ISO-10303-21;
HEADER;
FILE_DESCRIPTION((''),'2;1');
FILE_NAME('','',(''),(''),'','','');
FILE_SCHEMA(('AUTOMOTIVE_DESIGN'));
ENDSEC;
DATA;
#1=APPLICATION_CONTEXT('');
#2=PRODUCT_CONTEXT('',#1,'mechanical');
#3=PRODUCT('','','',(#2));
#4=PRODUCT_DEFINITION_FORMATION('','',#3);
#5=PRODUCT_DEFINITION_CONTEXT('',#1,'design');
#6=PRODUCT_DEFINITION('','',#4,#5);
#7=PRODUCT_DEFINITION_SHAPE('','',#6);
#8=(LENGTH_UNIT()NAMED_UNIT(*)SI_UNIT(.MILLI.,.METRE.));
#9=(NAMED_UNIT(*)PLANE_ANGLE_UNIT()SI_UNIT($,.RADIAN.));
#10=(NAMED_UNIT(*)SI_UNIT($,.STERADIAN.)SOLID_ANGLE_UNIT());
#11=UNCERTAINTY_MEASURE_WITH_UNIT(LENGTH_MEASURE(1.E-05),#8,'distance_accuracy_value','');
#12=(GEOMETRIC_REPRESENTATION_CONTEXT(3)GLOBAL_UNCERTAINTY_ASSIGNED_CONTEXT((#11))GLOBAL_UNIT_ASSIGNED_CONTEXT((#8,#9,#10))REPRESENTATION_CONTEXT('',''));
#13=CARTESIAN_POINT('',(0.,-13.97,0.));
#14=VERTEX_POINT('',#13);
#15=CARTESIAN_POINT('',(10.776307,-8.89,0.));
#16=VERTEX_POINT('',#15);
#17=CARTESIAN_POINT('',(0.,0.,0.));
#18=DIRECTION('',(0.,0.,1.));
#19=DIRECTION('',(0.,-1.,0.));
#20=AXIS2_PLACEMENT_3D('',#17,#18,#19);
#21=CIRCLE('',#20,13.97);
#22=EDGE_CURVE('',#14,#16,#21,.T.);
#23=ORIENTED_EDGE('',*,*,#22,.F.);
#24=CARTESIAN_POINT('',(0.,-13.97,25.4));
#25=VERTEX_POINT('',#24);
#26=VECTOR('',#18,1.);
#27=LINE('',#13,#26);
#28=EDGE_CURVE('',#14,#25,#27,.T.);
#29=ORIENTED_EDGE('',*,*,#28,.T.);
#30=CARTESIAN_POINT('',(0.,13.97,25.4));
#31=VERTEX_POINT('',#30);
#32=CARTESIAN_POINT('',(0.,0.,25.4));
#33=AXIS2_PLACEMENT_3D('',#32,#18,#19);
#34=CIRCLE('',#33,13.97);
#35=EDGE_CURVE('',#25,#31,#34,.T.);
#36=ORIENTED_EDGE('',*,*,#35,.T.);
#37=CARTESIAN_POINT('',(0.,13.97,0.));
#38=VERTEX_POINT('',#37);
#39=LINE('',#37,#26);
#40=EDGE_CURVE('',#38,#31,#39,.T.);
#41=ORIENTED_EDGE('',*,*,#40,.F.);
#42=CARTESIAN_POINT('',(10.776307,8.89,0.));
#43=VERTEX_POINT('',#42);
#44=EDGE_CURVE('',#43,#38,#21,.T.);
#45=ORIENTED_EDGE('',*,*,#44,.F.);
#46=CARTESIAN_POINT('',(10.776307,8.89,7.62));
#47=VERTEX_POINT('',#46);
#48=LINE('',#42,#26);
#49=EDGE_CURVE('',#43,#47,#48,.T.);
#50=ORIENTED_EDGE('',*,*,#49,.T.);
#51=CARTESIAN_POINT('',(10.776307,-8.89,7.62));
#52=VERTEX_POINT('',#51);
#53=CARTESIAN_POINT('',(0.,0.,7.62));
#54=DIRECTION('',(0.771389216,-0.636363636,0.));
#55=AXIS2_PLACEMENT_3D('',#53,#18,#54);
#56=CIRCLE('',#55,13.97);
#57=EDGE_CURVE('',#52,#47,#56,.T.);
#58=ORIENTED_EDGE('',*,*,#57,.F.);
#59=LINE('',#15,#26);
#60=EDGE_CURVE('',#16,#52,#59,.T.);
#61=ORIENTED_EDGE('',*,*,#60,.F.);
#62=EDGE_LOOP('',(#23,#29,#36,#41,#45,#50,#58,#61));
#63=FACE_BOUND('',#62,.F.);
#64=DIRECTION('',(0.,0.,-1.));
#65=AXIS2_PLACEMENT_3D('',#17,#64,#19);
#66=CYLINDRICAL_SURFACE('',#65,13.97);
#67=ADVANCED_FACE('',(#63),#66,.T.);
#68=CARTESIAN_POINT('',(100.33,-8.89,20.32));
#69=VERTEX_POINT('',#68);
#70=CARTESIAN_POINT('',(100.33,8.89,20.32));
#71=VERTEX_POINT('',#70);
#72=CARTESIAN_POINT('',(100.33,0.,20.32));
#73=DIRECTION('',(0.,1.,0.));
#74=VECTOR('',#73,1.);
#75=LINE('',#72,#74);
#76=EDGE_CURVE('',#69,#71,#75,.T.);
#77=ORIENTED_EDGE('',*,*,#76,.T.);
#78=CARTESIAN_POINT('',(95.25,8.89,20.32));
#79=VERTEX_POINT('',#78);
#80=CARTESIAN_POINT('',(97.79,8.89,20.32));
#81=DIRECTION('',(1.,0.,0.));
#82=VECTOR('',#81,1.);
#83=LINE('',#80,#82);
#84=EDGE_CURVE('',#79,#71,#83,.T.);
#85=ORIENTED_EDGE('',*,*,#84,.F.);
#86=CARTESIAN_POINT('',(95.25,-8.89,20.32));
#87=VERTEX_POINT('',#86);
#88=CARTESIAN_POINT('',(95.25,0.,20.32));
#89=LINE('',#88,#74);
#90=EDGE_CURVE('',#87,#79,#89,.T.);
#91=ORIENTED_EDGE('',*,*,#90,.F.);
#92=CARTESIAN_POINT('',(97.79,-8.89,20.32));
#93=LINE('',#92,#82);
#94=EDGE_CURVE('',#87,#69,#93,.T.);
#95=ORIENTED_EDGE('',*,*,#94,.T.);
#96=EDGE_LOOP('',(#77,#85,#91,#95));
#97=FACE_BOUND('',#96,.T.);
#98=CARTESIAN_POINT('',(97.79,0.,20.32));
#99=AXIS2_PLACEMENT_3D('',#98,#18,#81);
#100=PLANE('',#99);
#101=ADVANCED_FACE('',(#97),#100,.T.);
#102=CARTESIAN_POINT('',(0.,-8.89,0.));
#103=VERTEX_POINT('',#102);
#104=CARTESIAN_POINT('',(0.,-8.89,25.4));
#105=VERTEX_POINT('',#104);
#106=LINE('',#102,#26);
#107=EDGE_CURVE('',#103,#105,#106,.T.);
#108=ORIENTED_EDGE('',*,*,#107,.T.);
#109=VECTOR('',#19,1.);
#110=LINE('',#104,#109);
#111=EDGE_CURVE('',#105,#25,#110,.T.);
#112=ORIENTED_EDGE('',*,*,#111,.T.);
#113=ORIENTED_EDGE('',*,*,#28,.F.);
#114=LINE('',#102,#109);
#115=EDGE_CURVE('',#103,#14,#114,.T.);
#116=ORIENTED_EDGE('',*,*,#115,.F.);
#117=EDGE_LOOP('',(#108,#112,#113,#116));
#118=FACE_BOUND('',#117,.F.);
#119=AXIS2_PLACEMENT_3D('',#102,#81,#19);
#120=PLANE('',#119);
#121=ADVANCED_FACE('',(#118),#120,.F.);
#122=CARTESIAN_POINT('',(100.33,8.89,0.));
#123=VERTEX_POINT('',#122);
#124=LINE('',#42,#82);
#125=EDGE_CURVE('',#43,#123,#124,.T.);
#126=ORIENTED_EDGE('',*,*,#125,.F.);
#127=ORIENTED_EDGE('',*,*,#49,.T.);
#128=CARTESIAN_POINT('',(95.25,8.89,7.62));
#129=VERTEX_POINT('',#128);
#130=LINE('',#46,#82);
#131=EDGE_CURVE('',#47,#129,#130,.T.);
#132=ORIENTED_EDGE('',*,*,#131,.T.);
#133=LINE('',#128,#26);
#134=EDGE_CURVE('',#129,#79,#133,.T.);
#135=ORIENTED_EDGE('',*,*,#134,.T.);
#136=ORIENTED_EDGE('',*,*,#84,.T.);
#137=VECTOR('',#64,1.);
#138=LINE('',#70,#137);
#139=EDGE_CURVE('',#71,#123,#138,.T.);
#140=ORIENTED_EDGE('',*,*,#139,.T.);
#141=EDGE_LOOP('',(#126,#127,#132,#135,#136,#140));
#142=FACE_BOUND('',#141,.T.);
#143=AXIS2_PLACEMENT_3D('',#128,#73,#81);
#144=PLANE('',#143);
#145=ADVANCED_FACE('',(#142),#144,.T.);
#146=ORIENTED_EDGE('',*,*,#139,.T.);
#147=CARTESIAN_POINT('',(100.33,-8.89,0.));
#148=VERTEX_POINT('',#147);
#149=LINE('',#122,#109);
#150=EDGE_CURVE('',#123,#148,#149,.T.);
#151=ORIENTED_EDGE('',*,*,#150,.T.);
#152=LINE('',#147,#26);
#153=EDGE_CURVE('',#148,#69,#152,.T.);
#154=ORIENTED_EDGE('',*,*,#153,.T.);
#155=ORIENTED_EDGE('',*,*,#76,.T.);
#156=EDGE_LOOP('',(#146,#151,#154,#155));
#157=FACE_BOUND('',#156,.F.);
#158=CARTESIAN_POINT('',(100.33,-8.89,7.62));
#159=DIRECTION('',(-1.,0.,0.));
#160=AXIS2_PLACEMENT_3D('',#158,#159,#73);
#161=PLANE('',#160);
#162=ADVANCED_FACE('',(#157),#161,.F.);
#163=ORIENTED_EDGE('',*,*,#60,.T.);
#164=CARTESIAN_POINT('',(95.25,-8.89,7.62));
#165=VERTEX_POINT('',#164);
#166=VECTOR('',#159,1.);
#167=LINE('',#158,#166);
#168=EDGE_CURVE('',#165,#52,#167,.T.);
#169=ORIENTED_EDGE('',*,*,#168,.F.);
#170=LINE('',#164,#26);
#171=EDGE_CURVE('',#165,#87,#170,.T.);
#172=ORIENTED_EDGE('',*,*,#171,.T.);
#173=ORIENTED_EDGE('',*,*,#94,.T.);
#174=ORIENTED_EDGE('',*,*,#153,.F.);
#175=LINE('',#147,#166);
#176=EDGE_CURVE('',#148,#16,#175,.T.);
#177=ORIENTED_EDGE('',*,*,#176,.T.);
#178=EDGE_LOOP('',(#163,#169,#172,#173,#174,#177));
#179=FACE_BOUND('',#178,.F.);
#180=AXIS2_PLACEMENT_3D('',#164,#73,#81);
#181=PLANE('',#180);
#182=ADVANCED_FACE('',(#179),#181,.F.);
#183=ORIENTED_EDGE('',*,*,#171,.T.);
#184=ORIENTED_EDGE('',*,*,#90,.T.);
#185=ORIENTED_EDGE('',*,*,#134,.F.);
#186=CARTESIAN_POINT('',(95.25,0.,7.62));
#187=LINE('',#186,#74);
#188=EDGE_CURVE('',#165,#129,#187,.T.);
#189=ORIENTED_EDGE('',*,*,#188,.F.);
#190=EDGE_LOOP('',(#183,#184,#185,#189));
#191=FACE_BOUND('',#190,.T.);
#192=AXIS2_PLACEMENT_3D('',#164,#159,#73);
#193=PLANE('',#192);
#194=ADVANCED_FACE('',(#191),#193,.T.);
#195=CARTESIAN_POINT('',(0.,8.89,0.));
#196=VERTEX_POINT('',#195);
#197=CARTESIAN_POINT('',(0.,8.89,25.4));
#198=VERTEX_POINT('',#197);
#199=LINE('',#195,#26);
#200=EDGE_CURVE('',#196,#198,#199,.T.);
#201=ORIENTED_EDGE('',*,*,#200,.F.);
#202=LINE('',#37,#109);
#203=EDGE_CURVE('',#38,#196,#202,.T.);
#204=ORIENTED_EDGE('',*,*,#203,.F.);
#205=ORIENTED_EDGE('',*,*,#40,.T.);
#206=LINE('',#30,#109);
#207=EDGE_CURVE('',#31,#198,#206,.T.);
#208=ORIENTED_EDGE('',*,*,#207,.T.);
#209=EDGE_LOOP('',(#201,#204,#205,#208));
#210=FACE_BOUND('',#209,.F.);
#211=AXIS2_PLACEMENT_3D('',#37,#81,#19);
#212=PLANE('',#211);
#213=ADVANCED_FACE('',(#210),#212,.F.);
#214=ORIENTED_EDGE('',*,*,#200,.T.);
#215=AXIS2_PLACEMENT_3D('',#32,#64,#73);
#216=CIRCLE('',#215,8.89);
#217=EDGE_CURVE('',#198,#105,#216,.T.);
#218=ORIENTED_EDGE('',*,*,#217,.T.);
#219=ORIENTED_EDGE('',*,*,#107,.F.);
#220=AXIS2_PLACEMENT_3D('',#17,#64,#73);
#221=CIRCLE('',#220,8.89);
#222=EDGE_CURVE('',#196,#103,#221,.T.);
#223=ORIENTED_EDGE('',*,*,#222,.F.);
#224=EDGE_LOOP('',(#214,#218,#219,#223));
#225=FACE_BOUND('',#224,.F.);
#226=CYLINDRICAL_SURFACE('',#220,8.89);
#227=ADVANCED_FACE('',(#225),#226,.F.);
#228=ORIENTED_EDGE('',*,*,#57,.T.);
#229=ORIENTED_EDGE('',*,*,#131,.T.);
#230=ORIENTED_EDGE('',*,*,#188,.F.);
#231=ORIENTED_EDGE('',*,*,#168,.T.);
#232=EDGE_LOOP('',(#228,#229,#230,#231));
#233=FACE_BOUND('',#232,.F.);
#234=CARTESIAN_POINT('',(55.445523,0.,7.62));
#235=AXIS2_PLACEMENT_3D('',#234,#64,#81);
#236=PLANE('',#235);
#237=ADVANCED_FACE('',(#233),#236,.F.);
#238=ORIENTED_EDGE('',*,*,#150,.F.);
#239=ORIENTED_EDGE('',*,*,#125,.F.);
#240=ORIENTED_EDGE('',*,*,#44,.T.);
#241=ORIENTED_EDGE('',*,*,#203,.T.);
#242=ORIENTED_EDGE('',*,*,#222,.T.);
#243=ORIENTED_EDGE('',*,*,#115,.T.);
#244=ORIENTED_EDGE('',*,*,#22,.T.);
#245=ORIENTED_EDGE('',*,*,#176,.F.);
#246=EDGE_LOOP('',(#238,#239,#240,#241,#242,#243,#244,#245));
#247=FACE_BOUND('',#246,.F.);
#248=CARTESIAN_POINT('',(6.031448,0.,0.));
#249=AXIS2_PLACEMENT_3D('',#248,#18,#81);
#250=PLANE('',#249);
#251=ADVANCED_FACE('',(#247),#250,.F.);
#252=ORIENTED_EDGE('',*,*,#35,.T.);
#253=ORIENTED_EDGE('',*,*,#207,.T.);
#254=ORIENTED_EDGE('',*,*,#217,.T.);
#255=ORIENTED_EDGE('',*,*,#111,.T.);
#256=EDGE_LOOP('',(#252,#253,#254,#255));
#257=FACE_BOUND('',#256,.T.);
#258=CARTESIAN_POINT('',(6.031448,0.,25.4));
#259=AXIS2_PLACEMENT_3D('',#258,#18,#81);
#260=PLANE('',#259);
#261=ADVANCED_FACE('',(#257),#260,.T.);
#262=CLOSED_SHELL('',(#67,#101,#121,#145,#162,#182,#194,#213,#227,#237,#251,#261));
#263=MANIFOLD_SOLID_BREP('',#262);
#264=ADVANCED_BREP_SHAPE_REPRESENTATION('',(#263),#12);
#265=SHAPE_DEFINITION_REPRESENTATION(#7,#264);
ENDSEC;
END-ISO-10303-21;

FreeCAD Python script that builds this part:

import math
import FreeCAD as App
import Part
import Sketcher

V = App.Vector
Q = App.Units.Quantity

doc = App.newDocument("Part")
params = doc.addObject("Spreadsheet::Sheet", "Params")
for row, (alias, value) in enumerate([
    ("sketch1_radius", "0.35 in"),
    ("sketch1_radius2", "0.55 in"),
    ("pad1_length", "1 in"),
    ("sketch2_radius", "0.55 in"),
    ("sketch2_height", "0.7 in"),
    ("pad2_length", "0.3 in"),
    ("sketch3_width", "0.2 in"),
    ("sketch3_height", "0.7 in"),
    ("pad3_length", "0.5 in"),
], start=1):
    params.set(f"A{row}", alias)
    params.set(f"B{row}", "=" + value)
    params.setAlias(f"B{row}", alias)

body = doc.addObject("PartDesign::Body", "Body")

sketch1 = body.newObject("Sketcher::SketchObject", "Sketch")
sketch1.AttachmentSupport = (doc.getObject("XY_Plane"), [""])
sketch1.MapMode = "FlatFace"
sketch1.addGeometry(Part.ArcOfCircle(Part.Circle(V(0, 0, 0), V(0, 0, 1), 9), math.radians(-90), math.radians(90)), False)
sketch1.addGeometry(Part.LineSegment(V(0, -9, 0), V(0, -14, 0)), False)
sketch1.addGeometry(Part.ArcOfCircle(Part.Circle(V(0, 0, 0), V(0, 0, 1), 14), math.radians(-90), math.radians(90)), False)
sketch1.addGeometry(Part.LineSegment(V(0, 14, 0), V(0, 9, 0)), False)
sketch1.addConstraint(Sketcher.Constraint("Coincident", 0, 1, 1, 1))
sketch1.addConstraint(Sketcher.Constraint("Coincident", 1, 2, 2, 1))
sketch1.addConstraint(Sketcher.Constraint("Coincident", 2, 2, 3, 1))
sketch1.addConstraint(Sketcher.Constraint("Coincident", 3, 2, 0, 2))
sketch1.addConstraint(Sketcher.Constraint("Vertical", 1))
sketch1.addConstraint(Sketcher.Constraint("Vertical", 3))
sketch1.addConstraint(Sketcher.Constraint("Coincident", 0, 3, -1, 1))
sketch1.addConstraint(Sketcher.Constraint("Coincident", 2, 3, -1, 1))
sketch1.addConstraint(Sketcher.Constraint("PointOnObject", 0, 1, -2))
sketch1.addConstraint(Sketcher.Constraint("PointOnObject", 2, 2, -2))
sketch1.addConstraint(Sketcher.Constraint("Radius", 0, Q("0.35 in")))
sketch1.addConstraint(Sketcher.Constraint("Radius", 2, Q("0.55 in")))
sketch1.setExpression("Constraints[10]", "Params.sketch1_radius")
sketch1.setExpression("Constraints[11]", "Params.sketch1_radius2")
pad1 = body.newObject("PartDesign::Pad", "Pad")
pad1.Profile = sketch1
pad1.setExpression("Length", "Params.pad1_length")

sketch2 = body.newObject("Sketcher::SketchObject", "Sketch001")
sketch2.AttachmentSupport = (doc.getObject("XY_Plane"), [""])
sketch2.MapMode = "FlatFace"
sketch2.addGeometry(Part.LineSegment(V(100, -9, 0), V(11, -9, 0)), False)
sketch2.addGeometry(Part.ArcOfCircle(Part.Circle(V(0, 0, 0), V(0, 0, 1), 14), math.radians(-40), math.radians(40)), False)
sketch2.addGeometry(Part.LineSegment(V(11, 9, 0), V(100, 9, 0)), False)
sketch2.addGeometry(Part.LineSegment(V(100, 9, 0), V(100, -9, 0)), False)
sketch2.addConstraint(Sketcher.Constraint("Coincident", 0, 2, 1, 1))
sketch2.addConstraint(Sketcher.Constraint("Coincident", 1, 2, 2, 1))
sketch2.addConstraint(Sketcher.Constraint("Coincident", 2, 2, 3, 1))
sketch2.addConstraint(Sketcher.Constraint("Coincident", 3, 2, 0, 1))
sketch2.addConstraint(Sketcher.Constraint("Horizontal", 0))
sketch2.addConstraint(Sketcher.Constraint("Horizontal", 2))
sketch2.addConstraint(Sketcher.Constraint("Vertical", 3))
sketch2.addConstraint(Sketcher.Constraint("Coincident", 1, 3, -1, 1))
sketch2.addConstraint(Sketcher.Constraint("Vertical", 0, 2, 1, 2))
sketch2.addConstraint(Sketcher.Constraint("Radius", 1, Q("0.55 in")))
sketch2.addConstraint(Sketcher.Constraint("DistanceY", 3, 2, 3, 1, Q("0.7 in")))
sketch2.addConstraint(Sketcher.Constraint("DistanceX", -1, 1, 2, 2, Q("3.95 in")))
sketch2.setExpression("Constraints[9]", "Params.sketch2_radius")
sketch2.setExpression("Constraints[10]", "Params.sketch2_height")
pad2 = body.newObject("PartDesign::Pad", "Pad001")
pad2.Profile = sketch2
pad2.setExpression("Length", "Params.pad2_length")

sketch3 = body.newObject("Sketcher::SketchObject", "Sketch002")
sketch3.AttachmentSupport = (doc.getObject("XY_Plane"), [""])
sketch3.MapMode = "FlatFace"
sketch3.AttachmentOffset = App.Placement(V(0, 0, 0.3 * 25.4), App.Rotation())
sketch3.addGeometry(Part.LineSegment(V(95, 9, 0), V(95, -9, 0)), False)
sketch3.addGeometry(Part.LineSegment(V(95, -9, 0), V(100, -9, 0)), False)
sketch3.addGeometry(Part.LineSegment(V(100, -9, 0), V(100, 9, 0)), False)
sketch3.addGeometry(Part.LineSegment(V(100, 9, 0), V(95, 9, 0)), False)
sketch3.addConstraint(Sketcher.Constraint("Coincident", 0, 2, 1, 1))
sketch3.addConstraint(Sketcher.Constraint("Coincident", 1, 2, 2, 1))
sketch3.addConstraint(Sketcher.Constraint("Coincident", 2, 2, 3, 1))
sketch3.addConstraint(Sketcher.Constraint("Coincident", 3, 2, 0, 1))
sketch3.addConstraint(Sketcher.Constraint("Vertical", 0))
sketch3.addConstraint(Sketcher.Constraint("Horizontal", 1))
sketch3.addConstraint(Sketcher.Constraint("Vertical", 2))
sketch3.addConstraint(Sketcher.Constraint("Horizontal", 3))
sketch3.addConstraint(Sketcher.Constraint("DistanceX", 1, 1, 1, 2, Q("0.2 in")))
sketch3.addConstraint(Sketcher.Constraint("DistanceY", 0, 2, 0, 1, Q("0.7 in")))
sketch3.addConstraint(Sketcher.Constraint("DistanceX", -1, 1, 0, 2, Q("3.75 in")))
sketch3.addConstraint(Sketcher.Constraint("DistanceY", 0, 2, -1, 1, Q("0.35 in")))
sketch3.setExpression("Constraints[8]", "Params.sketch3_width")
sketch3.setExpression("Constraints[9]", "Params.sketch3_height")
pad3 = body.newObject("PartDesign::Pad", "Pad002")
pad3.Profile = sketch3
pad3.setExpression("Length", "Params.pad3_length")

doc.recompute()
